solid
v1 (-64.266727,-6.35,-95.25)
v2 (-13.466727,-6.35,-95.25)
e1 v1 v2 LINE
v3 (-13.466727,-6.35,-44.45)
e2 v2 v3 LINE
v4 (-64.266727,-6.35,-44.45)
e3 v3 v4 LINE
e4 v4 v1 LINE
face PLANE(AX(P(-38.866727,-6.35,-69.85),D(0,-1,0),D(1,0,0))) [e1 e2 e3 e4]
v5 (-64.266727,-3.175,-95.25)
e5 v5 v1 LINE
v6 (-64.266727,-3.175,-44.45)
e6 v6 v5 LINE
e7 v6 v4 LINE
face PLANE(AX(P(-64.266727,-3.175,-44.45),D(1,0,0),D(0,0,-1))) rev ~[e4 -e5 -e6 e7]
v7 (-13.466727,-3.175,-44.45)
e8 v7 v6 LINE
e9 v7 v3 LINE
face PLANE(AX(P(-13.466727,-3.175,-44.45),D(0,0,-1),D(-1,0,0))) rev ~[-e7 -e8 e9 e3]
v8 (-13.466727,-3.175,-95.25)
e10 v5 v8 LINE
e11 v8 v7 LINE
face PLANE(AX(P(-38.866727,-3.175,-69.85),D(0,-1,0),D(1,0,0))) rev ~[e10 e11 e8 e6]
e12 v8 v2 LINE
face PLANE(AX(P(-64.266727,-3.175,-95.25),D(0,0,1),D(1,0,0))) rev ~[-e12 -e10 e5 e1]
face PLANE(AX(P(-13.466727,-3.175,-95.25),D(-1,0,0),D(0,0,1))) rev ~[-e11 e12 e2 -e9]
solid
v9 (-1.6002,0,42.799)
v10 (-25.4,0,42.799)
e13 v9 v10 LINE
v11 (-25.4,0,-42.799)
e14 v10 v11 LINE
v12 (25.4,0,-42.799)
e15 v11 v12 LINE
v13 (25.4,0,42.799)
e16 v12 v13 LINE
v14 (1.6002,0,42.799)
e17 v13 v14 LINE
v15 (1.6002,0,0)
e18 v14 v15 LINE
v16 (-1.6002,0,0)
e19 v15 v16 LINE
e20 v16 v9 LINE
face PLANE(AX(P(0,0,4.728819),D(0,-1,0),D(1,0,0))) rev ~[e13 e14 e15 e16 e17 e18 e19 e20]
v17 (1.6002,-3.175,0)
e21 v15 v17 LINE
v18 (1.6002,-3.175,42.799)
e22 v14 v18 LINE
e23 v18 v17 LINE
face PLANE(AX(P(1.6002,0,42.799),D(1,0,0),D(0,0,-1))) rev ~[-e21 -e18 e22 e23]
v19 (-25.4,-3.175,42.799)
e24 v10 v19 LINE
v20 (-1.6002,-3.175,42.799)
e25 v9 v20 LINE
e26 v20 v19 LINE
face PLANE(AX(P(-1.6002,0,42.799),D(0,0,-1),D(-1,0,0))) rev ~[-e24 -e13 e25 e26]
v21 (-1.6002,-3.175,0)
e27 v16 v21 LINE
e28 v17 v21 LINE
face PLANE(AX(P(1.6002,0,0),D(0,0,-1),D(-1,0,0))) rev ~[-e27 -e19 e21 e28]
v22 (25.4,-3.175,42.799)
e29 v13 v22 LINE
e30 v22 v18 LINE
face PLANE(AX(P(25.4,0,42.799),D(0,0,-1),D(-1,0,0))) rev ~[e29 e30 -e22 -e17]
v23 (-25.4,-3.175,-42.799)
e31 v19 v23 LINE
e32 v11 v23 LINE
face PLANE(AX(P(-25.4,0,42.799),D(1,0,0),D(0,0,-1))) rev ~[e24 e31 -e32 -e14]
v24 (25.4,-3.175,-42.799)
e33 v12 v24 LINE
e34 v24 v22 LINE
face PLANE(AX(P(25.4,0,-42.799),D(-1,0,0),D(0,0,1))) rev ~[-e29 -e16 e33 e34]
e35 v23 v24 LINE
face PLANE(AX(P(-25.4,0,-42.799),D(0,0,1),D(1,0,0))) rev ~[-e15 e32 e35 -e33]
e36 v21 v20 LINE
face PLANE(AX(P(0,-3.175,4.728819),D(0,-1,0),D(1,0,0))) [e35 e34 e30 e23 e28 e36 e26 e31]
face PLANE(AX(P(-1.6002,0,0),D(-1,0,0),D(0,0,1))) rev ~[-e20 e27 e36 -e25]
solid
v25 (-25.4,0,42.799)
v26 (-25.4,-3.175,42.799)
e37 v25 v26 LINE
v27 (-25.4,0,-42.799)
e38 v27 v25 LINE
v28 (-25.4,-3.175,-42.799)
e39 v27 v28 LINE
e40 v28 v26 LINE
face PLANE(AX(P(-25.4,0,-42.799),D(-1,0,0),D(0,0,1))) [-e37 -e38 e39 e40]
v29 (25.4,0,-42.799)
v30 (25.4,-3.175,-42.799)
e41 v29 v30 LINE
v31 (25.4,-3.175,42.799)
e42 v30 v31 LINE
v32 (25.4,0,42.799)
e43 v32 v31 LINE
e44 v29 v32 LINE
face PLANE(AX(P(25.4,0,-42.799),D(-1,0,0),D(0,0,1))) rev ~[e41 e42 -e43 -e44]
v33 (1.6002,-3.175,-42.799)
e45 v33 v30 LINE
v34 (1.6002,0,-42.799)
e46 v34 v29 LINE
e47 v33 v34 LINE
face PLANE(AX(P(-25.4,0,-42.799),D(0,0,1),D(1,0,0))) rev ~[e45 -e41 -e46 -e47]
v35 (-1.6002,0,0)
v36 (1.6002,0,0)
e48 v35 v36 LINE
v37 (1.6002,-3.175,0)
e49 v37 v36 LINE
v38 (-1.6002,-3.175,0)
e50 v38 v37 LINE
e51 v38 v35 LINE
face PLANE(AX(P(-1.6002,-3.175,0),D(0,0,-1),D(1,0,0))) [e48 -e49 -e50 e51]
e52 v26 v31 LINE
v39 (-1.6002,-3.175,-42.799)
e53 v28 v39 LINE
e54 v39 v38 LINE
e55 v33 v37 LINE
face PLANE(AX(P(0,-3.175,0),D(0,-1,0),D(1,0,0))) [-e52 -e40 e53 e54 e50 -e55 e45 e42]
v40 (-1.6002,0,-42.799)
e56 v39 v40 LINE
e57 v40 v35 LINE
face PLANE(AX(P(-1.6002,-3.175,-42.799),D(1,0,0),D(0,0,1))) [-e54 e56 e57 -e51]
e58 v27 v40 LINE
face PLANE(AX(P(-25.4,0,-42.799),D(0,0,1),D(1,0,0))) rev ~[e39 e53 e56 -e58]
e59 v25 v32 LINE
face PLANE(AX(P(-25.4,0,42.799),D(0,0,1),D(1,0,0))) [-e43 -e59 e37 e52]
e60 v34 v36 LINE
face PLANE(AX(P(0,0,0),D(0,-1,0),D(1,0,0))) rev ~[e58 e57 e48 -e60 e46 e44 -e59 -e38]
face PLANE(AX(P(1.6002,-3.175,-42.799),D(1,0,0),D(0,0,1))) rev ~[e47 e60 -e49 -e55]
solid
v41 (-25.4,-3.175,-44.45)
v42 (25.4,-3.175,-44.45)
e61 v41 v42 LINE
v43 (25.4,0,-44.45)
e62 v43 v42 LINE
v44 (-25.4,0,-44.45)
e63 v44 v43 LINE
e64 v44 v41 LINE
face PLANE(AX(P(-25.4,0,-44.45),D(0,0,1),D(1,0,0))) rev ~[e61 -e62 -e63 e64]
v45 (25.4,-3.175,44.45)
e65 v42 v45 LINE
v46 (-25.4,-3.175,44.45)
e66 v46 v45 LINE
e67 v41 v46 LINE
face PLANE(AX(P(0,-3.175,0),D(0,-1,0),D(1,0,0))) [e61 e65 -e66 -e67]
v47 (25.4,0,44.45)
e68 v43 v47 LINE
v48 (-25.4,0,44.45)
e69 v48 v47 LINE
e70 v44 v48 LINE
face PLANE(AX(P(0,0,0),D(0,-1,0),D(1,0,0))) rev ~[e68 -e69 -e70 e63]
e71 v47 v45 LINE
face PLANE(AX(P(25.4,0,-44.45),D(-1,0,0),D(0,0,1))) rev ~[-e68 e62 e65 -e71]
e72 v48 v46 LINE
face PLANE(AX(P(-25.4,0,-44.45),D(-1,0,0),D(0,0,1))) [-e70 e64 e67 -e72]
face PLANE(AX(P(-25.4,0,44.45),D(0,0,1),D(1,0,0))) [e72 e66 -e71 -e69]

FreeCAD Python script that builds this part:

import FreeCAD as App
import Part
import Sketcher

V = App.Vector
Q = App.Units.Quantity

doc = App.newDocument("Part")
params = doc.addObject("Spreadsheet::Sheet", "Params")
for row, (alias, value) in enumerate([
    ("sketch1_width", "2 in"),
    ("sketch1_height", "3.5 in"),
    ("pad1_length", "0.125 in"),
    ("sketch2_width", "2 in"),
    ("sketch2_height", "3.5 in"),
    ("pad2_length", "0.125 in"),
    ("sketch3_width", "2 in"),
    ("pad3_length", "0.125 in"),
    ("sketch4_width", "2 in"),
    ("sketch4_height", "3.37 in"),
    ("pad4_length", "0.125 in"),
    ("sketch5_width", "0.126 in"),
    ("sketch5_height", "1.685 in"),
    ("pocket1_length", "1 in"),
    ("sketch6_width", "2 in"),
    ("sketch6_height", "3.37 in"),
    ("sketch6_width2", "0.937 in"),
    ("pad5_length", "0.125 in"),
], start=1):
    params.set(f"A{row}", alias)
    params.set(f"B{row}", "=" + value)
    params.setAlias(f"B{row}", alias)

body = doc.addObject("PartDesign::Body", "Body")

# Sketch on XZ plane
sketch1 = doc.addObject("Sketcher::SketchObject", "Sketch")
body.addObject(sketch1)
sketch1.AttachmentSupport = (doc.XZ_Plane, [""])
sketch1.MapMode = "FlatFace"
sketch1.addGeometry([
    Part.LineSegment(V(-25, 44, 0), V(-25, -44, 0)),
    Part.LineSegment(V(-25, -44, 0), V(25, -44, 0)),
    Part.LineSegment(V(25, -44, 0), V(25, 44, 0)),
    Part.LineSegment(V(25, 44, 0), V(-25, 44, 0)),
], False)
sketch1.addConstraint([
    Sketcher.Constraint("Coincident", 0, 2, 1, 1),
    Sketcher.Constraint("Coincident", 1, 2, 2, 1),
    Sketcher.Constraint("Coincident", 2, 2, 3, 1),
    Sketcher.Constraint("Coincident", 3, 2, 0, 1),
    Sketcher.Constraint("Vertical", 0),
    Sketcher.Constraint("Horizontal", 1),
    Sketcher.Constraint("Vertical", 2),
    Sketcher.Constraint("Horizontal", 3),
    Sketcher.Constraint("Symmetric", 0, 2, 2, 2, -1, 1),
    Sketcher.Constraint("DistanceX", 1, 1, 1, 2, Q("2 in")),
    Sketcher.Constraint("DistanceY", 0, 2, 0, 1, Q("3.5 in")),
])
sketch1.setExpression("Constraints[9]", "Params.sketch1_width")
sketch1.setExpression("Constraints[10]", "Params.sketch1_height")
pad1 = doc.addObject("PartDesign::Pad", "Pad")
body.addObject(pad1)
pad1.Profile = sketch1
pad1.setExpression("Length", "Params.pad1_length")

# Sketch on XZ plane
sketch2 = doc.addObject("Sketcher::SketchObject", "Sketch001")
body.addObject(sketch2)
sketch2.AttachmentSupport = (doc.XZ_Plane, [""])
sketch2.MapMode = "FlatFace"
sketch2.addGeometry([
    Part.LineSegment(V(-25, 44, 0), V(-25, -44, 0)),
    Part.LineSegment(V(-25, -44, 0), V(25, -44, 0)),
    Part.LineSegment(V(25, -44, 0), V(25, 44, 0)),
    Part.LineSegment(V(25, 44, 0), V(-25, 44, 0)),
], False)
sketch2.addConstraint([
    Sketcher.Constraint("Coincident", 0, 2, 1, 1),
    Sketcher.Constraint("Coincident", 1, 2, 2, 1),
    Sketcher.Constraint("Coincident", 2, 2, 3, 1),
    Sketcher.Constraint("Coincident", 3, 2, 0, 1),
    Sketcher.Constraint("Vertical", 0),
    Sketcher.Constraint("Horizontal", 1),
    Sketcher.Constraint("Vertical", 2),
    Sketcher.Constraint("Horizontal", 3),
    Sketcher.Constraint("Symmetric", 0, 2, 2, 2, -1, 1),
    Sketcher.Constraint("DistanceX", 1, 1, 1, 2, Q("2 in")),
    Sketcher.Constraint("DistanceY", 0, 2, 0, 1, Q("3.5 in")),
])
sketch2.setExpression("Constraints[9]", "Params.sketch2_width")
sketch2.setExpression("Constraints[10]", "Params.sketch2_height")
pad2 = doc.addObject("PartDesign::Pad", "Pad001")
body.addObject(pad2)
pad2.Profile = sketch2
pad2.setExpression("Length", "Params.pad2_length")
body2 = doc.addObject("PartDesign::Body", "Body001")

# Sketch on XZ plane
sketch3 = doc.addObject("Sketcher::SketchObject", "Sketch002")
body2.addObject(sketch3)
sketch3.AttachmentSupport = (doc.getObject("XZ_Plane001"), [""])
sketch3.MapMode = "FlatFace"
sketch3.AttachmentOffset = App.Placement(V(0, 0, 0.125 * 25.4), App.Rotation())
sketch3.addGeometry([
    Part.LineSegment(V(-13, -95, 0), V(-13, -44, 0)),
    Part.LineSegment(V(-13, -44, 0), V(-64, -44, 0)),
    Part.LineSegment(V(-64, -44, 0), V(-64, -95, 0)),
    Part.LineSegment(V(-64, -95, 0), V(-13, -95, 0)),
], False)
sketch3.addConstraint([
    Sketcher.Constraint("Coincident", 0, 2, 1, 1),
    Sketcher.Constraint("Coincident", 1, 2, 2, 1),
    Sketcher.Constraint("Coincident", 2, 2, 3, 1),
    Sketcher.Constraint("Coincident", 3, 2, 0, 1),
    Sketcher.Constraint("Vertical", 0),
    Sketcher.Constraint("Horizontal", 1),
    Sketcher.Constraint("Vertical", 2),
    Sketcher.Constraint("Horizontal", 3),
    Sketcher.Constraint("Equal", 3, 0),
    Sketcher.Constraint("DistanceX", 1, 2, 1, 1, Q("2 in")),
    Sketcher.Constraint("DistanceY", 0, 2, -1, 1, Q("1.75 in")),
    Sketcher.Constraint("DistanceX", 0, 2, -1, 1, Q("13.466727 mm")),
])
sketch3.setExpression("Constraints[9]", "Params.sketch3_width")
pad3 = doc.addObject("PartDesign::Pad", "Pad002")
body2.addObject(pad3)
pad3.Profile = sketch3
pad3.setExpression("Length", "Params.pad3_length")
body3 = doc.addObject("PartDesign::Body", "Body002")

# Sketch on XZ plane
sketch4 = doc.addObject("Sketcher::SketchObject", "Sketch003")
body3.addObject(sketch4)
sketch4.AttachmentSupport = (doc.getObject("XZ_Plane002"), [""])
sketch4.MapMode = "FlatFace"
sketch4.addGeometry([
    Part.LineSegment(V(-25, 43, 0), V(-25, -43, 0)),
    Part.LineSegment(V(-25, -43, 0), V(25, -43, 0)),
    Part.LineSegment(V(25, -43, 0), V(25, 43, 0)),
    Part.LineSegment(V(25, 43, 0), V(-25, 43, 0)),
], False)
sketch4.addConstraint([
    Sketcher.Constraint("Coincident", 0, 2, 1, 1),
    Sketcher.Constraint("Coincident", 1, 2, 2, 1),
    Sketcher.Constraint("Coincident", 2, 2, 3, 1),
    Sketcher.Constraint("Coincident", 3, 2, 0, 1),
    Sketcher.Constraint("Vertical", 0),
    Sketcher.Constraint("Horizontal", 1),
    Sketcher.Constraint("Vertical", 2),
    Sketcher.Constraint("Horizontal", 3),
    Sketcher.Constraint("Symmetric", 0, 2, 2, 2, -1, 1),
    Sketcher.Constraint("DistanceX", 1, 1, 1, 2, Q("2 in")),
    Sketcher.Constraint("DistanceY", 0, 2, 0, 1, Q("3.37 in")),
])
sketch4.setExpression("Constraints[9]", "Params.sketch4_width")
sketch4.setExpression("Constraints[10]", "Params.sketch4_height")
pad4 = doc.addObject("PartDesign::Pad", "Pad003")
body3.addObject(pad4)
pad4.Profile = sketch4
pad4.setExpression("Length", "Params.pad4_length")

# Sketch on XZ plane
sketch5 = doc.addObject("Sketcher::SketchObject", "Sketch004")
body3.addObject(sketch5)
sketch5.AttachmentSupport = (doc.getObject("XZ_Plane002"), [""])
sketch5.MapMode = "FlatFace"
sketch5.AttachmentOffset = App.Placement(V(0, 0, 0.125 * 25.4), App.Rotation())
sketch5.addGeometry([
    Part.LineSegment(V(-1.6, 0, 0), V(-1.6, -42.8, 0)),
    Part.LineSegment(V(-1.6, -42.8, 0), V(1.6, -42.8, 0)),
    Part.LineSegment(V(1.6, -42.8, 0), V(1.6, 0, 0)),
    Part.LineSegment(V(1.6, 0, 0), V(-1.6, 0, 0)),
], False)
sketch5.addConstraint([
    Sketcher.Constraint("Coincident", 0, 2, 1, 1),
    Sketcher.Constraint("Coincident", 1, 2, 2, 1),
    Sketcher.Constraint("Coincident", 2, 2, 3, 1),
    Sketcher.Constraint("Coincident", 3, 2, 0, 1),
    Sketcher.Constraint("Vertical", 0),
    Sketcher.Constraint("Horizontal", 1),
    Sketcher.Constraint("Vertical", 2),
    Sketcher.Constraint("Horizontal", 3),
    Sketcher.Constraint("Symmetric", 2, 2, 3, 2, -1, 1),
    Sketcher.Constraint("DistanceX", 1, 1, 1, 2, Q("0.126 in")),
    Sketcher.Constraint("DistanceY", 0, 2, 0, 1, Q("1.685 in")),
])
sketch5.setExpression("Constraints[9]", "Params.sketch5_width")
sketch5.setExpression("Constraints[10]", "Params.sketch5_height")
pocket1 = doc.addObject("PartDesign::Pocket", "Pocket")
body3.addObject(pocket1)
pocket1.Profile = sketch5
pocket1.setExpression("Length", "Params.pocket1_length")
body4 = doc.addObject("PartDesign::Body", "Body003")

# Sketch on XZ plane
sketch6 = doc.addObject("Sketcher::SketchObject", "Sketch005")
body4.addObject(sketch6)
sketch6.AttachmentSupport = (doc.getObject("XZ_Plane003"), [""])
sketch6.MapMode = "FlatFace"
sketch6.addGeometry([
    Part.LineSegment(V(-25.4, -42.8, 0), V(25.4, -42.8, 0)),  # 0
    Part.LineSegment(V(25.4, -42.8, 0), V(25.4, 42.8, 0)),  # 1
    Part.LineSegment(V(25.4, 42.8, 0), V(1.6, 42.8, 0)),  # 2
    Part.LineSegment(V(1.6, 42.8, 0), V(1.6, 0, 0)),  # 3
    Part.LineSegment(V(1.6, 0, 0), V(-1.6, 0, 0)),  # 4
    Part.LineSegment(V(-1.6, 0, 0), V(-1.6, 42.8, 0)),  # 5
    Part.LineSegment(V(-1.6, 42.8, 0), V(-25.4, 42.8, 0)),  # 6
    Part.LineSegment(V(-25.4, 42.8, 0), V(-25.4, -42.8, 0)),  # 7
], False)
sketch6.addConstraint([
    Sketcher.Constraint("Coincident", 0, 2, 1, 1),
    Sketcher.Constraint("Coincident", 1, 2, 2, 1),
    Sketcher.Constraint("Coincident", 2, 2, 3, 1),
    Sketcher.Constraint("Coincident", 3, 2, 4, 1),
    Sketcher.Constraint("Coincident", 4, 2, 5, 1),
    Sketcher.Constraint("Coincident", 5, 2, 6, 1),
    Sketcher.Constraint("Coincident", 6, 2, 7, 1),
    Sketcher.Constraint("Coincident", 7, 2, 0, 1),
    Sketcher.Constraint("Horizontal", 0),
    Sketcher.Constraint("Vertical", 1),
    Sketcher.Constraint("Horizontal", 2),
    Sketcher.Constraint("Vertical", 3),
    Sketcher.Constraint("Horizontal", 4),
    Sketcher.Constraint("Vertical", 5),
    Sketcher.Constraint("Horizontal", 6),
    Sketcher.Constraint("Vertical", 7),
    Sketcher.Constraint("Symmetric", 3, 2, 4, 2, -1, 1),
    Sketcher.Constraint("Symmetric", 0, 2, 6, 2, -1, 1),
    Sketcher.Constraint("Horizontal", 2, 2, 5, 2),
    Sketcher.Constraint("DistanceX", 0, 1, 0, 2, Q("2 in")),
    Sketcher.Constraint("DistanceY", 1, 1, 1, 2, Q("3.37 in")),
    Sketcher.Constraint("DistanceX", 2, 2, 2, 1, Q("0.937 in")),
])
sketch6.setExpression("Constraints[19]", "Params.sketch6_width")
sketch6.setExpression("Constraints[20]", "Params.sketch6_height")
sketch6.setExpression("Constraints[21]", "Params.sketch6_width2")
pad5 = doc.addObject("PartDesign::Pad", "Pad004")
body4.addObject(pad5)
pad5.Profile = sketch6
pad5.setExpression("Length", "Params.pad5_length")

doc.recompute()
